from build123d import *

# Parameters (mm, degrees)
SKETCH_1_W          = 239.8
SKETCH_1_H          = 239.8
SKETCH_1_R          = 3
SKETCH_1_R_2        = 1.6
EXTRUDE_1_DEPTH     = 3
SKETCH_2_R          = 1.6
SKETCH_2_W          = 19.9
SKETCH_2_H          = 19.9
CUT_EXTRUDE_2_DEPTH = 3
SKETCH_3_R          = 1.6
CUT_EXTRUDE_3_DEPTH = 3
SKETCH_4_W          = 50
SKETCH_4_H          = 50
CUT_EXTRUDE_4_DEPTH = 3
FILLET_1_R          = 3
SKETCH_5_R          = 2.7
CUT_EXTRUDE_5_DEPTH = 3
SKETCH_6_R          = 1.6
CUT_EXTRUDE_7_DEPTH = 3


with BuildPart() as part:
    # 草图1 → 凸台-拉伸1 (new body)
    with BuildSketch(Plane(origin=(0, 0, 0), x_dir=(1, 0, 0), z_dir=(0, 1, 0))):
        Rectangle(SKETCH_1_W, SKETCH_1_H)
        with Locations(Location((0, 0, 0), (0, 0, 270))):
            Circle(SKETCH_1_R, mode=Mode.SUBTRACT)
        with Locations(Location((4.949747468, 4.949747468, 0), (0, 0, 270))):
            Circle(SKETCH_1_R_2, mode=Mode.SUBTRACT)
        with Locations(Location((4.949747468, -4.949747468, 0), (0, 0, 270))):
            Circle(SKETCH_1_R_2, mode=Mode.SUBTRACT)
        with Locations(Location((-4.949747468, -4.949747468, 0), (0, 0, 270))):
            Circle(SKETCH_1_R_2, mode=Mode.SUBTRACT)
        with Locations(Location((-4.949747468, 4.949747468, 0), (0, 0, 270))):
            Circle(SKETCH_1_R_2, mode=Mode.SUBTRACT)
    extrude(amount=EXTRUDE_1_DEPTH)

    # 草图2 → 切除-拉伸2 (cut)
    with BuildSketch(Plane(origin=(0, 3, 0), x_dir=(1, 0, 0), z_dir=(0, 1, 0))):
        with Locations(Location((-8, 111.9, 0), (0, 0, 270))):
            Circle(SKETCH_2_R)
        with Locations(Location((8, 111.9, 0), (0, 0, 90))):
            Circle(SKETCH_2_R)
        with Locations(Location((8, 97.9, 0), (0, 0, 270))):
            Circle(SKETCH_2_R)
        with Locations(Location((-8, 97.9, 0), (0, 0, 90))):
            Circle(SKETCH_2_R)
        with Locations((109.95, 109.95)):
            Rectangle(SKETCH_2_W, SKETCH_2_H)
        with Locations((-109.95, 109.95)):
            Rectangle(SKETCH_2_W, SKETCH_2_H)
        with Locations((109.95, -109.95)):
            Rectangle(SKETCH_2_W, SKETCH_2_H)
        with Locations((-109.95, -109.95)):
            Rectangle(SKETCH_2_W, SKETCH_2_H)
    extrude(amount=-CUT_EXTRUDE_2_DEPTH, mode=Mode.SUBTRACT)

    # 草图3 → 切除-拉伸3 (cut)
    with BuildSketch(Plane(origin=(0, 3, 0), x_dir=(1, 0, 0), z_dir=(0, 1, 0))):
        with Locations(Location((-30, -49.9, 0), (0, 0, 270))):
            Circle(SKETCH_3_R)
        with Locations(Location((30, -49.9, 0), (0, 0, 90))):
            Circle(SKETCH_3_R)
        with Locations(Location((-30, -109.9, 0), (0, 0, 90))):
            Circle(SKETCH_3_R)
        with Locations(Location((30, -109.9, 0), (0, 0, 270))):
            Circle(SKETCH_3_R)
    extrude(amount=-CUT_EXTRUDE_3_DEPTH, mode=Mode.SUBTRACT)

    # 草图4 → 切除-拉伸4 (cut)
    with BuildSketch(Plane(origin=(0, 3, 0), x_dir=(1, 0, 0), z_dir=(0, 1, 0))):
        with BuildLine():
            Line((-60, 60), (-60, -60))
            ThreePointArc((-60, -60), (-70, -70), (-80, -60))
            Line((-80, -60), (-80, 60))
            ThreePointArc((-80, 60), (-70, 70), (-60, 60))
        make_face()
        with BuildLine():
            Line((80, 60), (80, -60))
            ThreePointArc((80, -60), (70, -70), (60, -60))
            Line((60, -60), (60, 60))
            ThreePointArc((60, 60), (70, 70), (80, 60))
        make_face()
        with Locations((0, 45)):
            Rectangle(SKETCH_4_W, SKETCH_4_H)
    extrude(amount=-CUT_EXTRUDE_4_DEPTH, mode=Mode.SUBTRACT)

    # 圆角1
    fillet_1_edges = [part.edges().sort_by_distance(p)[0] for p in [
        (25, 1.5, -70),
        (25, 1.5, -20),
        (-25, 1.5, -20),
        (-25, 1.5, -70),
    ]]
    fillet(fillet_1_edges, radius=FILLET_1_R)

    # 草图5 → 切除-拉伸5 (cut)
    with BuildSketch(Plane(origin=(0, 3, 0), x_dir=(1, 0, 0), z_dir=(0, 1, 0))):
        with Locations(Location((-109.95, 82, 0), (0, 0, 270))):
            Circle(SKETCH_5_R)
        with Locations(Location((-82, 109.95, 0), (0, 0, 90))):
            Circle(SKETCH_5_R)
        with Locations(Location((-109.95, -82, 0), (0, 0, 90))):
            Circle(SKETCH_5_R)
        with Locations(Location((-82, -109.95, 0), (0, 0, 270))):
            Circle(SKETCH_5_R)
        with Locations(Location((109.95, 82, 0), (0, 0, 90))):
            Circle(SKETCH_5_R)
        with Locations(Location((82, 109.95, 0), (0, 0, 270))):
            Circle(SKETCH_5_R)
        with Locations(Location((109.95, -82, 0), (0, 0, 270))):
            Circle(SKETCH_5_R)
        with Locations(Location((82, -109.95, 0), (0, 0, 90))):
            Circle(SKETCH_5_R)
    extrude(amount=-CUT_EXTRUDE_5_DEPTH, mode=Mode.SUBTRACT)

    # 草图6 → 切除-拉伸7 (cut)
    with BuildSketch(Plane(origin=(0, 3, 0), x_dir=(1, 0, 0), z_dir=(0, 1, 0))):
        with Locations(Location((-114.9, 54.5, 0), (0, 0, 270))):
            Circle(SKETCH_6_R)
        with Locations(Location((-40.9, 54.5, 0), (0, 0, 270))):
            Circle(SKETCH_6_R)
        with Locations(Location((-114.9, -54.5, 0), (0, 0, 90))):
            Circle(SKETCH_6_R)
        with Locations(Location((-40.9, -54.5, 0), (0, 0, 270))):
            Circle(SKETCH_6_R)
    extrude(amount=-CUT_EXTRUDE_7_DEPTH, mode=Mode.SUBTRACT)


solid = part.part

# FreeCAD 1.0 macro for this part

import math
import FreeCAD as App
import Part
import Sketcher
Q = App.Units.Quantity


def edges_at(feature, points):
    """Names of the edges that pass closest to the given points."""
    edges = feature.Shape.Edges
    near = lambda p: min(range(len(edges)), key=lambda i: edges[i].distToShape(Part.Vertex(*p))[0])
    return sorted({f"Edge{near(p) + 1}" for p in points})


def add_polygon(sketch, points):
    """Adds a closed chain of lines whose ends are joined by coincident constraints."""
    first, n = sketch.GeometryCount, len(points)
    for a, b in zip(points, points[1:] + points[:1]):
        sketch.addGeometry(Part.LineSegment(App.Vector(*a, 0), App.Vector(*b, 0)), False)
    for i in range(n):
        sketch.addConstraint(Sketcher.Constraint("Coincident", first + i, 2, first + (i + 1) % n, 1))

doc = App.newDocument("Part")
params = doc.addObject("Spreadsheet::Sheet", "Params")
for row, (alias, value) in enumerate([
    ("sketch1_diameter", "6 mm"),
    ("sketch1_diameter2", "3.2 mm"),
    ("sketch1_width", "239.8 mm"),
    ("pad1_length", "3 mm"),
    ("sketch2_diameter", "3.2 mm"),
    ("sketch2_width", "19.9 mm"),
    ("pocket1_length", "3 mm"),
    ("sketch3_diameter", "3.2 mm"),
    ("pocket2_length", "3 mm"),
    ("sketch4_radius", "10 mm"),
    ("sketch4_width", "50 mm"),
    ("sketch4_height", "120 mm"),
    ("pocket3_length", "3 mm"),
    ("fillet_radius", "3 mm"),
    ("sketch5_diameter", "5.4 mm"),
    ("pocket4_length", "3 mm"),
    ("sketch6_diameter", "3.2 mm"),
    ("pocket5_length", "3 mm"),
], start=1):
    params.set(f"A{row}", alias)
    params.set(f"B{row}", "=" + value)
    params.setAlias(f"B{row}", alias)

body = doc.addObject("PartDesign::Body", "Body")

# Sketch on XZ plane
sketch1 = doc.addObject("Sketcher::SketchObject", "Sketch")
body.addObject(sketch1)
sketch1.AttachmentSupport = (doc.XZ_Plane, [""])
sketch1.MapMode = "FlatFace"
add_polygon(sketch1, [(-119.9, -119.9), (-119.9, 119.9), (119.9, 119.9), (119.9, -119.9)])  # lines 0-3
sketch1.addGeometry(Part.Circle(App.Vector(-4.9, 4.9, 0), App.Vector(0, 0, 1), 1.6), False)  # 4
sketch1.addGeometry(Part.Circle(App.Vector(4.9, 4.9, 0), App.Vector(0, 0, 1), 1.6), False)  # 5
sketch1.addGeometry(Part.Circle(App.Vector(-4.9, -4.9, 0), App.Vector(0, 0, 1), 1.6), False)  # 6
sketch1.addGeometry(Part.Circle(App.Vector(0, 0, 0), App.Vector(0, 0, 1), 3), False)  # 7
sketch1.addGeometry(Part.Circle(App.Vector(4.9, -4.9, 0), App.Vector(0, 0, 1), 1.6), False)  # 8
sketch1.addConstraint(Sketcher.Constraint("Vertical", 0))
sketch1.addConstraint(Sketcher.Constraint("Horizontal", 1))
sketch1.addConstraint(Sketcher.Constraint("Vertical", 2))
sketch1.addConstraint(Sketcher.Constraint("Horizontal", 3))
sketch1.addConstraint(Sketcher.Constraint("Coincident", 7, 3, -1, 1))
sketch1.addConstraint(Sketcher.Constraint("Equal", 4, 5))
sketch1.addConstraint(Sketcher.Constraint("Equal", 5, 6))
sketch1.addConstraint(Sketcher.Constraint("Equal", 6, 8))
sketch1.addConstraint(Sketcher.Constraint("Symmetric", 5, 3, 6, 3, -1, 1))
sketch1.addConstraint(Sketcher.Constraint("Symmetric", 4, 3, 8, 3, -1, 1))
sketch1.addConstraint(Sketcher.Constraint("Symmetric", 0, 2, 2, 2, -1, 1))
sketch1.addConstraint(Sketcher.Constraint("Symmetric", 4, 3, 5, 3, -2))
sketch1.addConstraint(Sketcher.Constraint("Equal", 3, 0))
sketch1.addConstraint(Sketcher.Constraint("Diameter", 7, Q("6 mm")))
sketch1.addConstraint(Sketcher.Constraint("Diameter", 4, Q("3.2 mm")))
sketch1.addConstraint(Sketcher.Constraint("DistanceX", 1, 1, 1, 2, Q("239.8 mm")))
sketch1.addConstraint(Sketcher.Constraint("DistanceX", 4, 3, -1, 1, Q("4.949747 mm")))
sketch1.addConstraint(Sketcher.Constraint("DistanceY", -1, 1, 4, 3, Q("4.949747 mm")))
sketch1.setExpression("Constraints[17]", "Params.sketch1_diameter")
sketch1.setExpression("Constraints[18]", "Params.sketch1_diameter2")
sketch1.setExpression("Constraints[19]", "Params.sketch1_width")
pad1 = doc.addObject("PartDesign::Pad", "Pad")
body.addObject(pad1)
pad1.Profile = sketch1
pad1.setExpression("Length", "Params.pad1_length")
pad1.Reversed = True

# Sketch on XZ plane
sketch2 = doc.addObject("Sketcher::SketchObject", "Sketch001")
body.addObject(sketch2)
sketch2.AttachmentSupport = (doc.XZ_Plane, [""])
sketch2.MapMode = "FlatFace"
sketch2.AttachmentOffset = App.Placement(App.Vector(0, 0, -3), App.Rotation())
sketch2.addGeometry(Part.Circle(App.Vector(-8, -111.9, 0), App.Vector(0, 0, 1), 1.6), False)  # 0
sketch2.addGeometry(Part.Circle(App.Vector(8, -111.9, 0), App.Vector(0, 0, 1), 1.6), False)  # 1
sketch2.addGeometry(Part.Circle(App.Vector(8, -97.9, 0), App.Vector(0, 0, 1), 1.6), False)  # 2
sketch2.addGeometry(Part.Circle(App.Vector(-8, -97.9, 0), App.Vector(0, 0, 1), 1.6), False)  # 3
add_polygon(sketch2, [(100, -119.9), (100, -100), (119.9, -100), (119.9, -119.9)])  # lines 4-7
add_polygon(sketch2, [(-119.9, -119.9), (-119.9, -100), (-100, -100), (-100, -119.9)])  # lines 8-11
add_polygon(sketch2, [(100, 100), (100, 119.9), (119.9, 119.9), (119.9, 100)])  # lines 12-15
add_polygon(sketch2, [(-119.9, 100), (-119.9, 119.9), (-100, 119.9), (-100, 100)])  # lines 16-19
sketch2.addConstraint(Sketcher.Constraint("Vertical", 4))
sketch2.addConstraint(Sketcher.Constraint("Horizontal", 5))
sketch2.addConstraint(Sketcher.Constraint("Vertical", 6))
sketch2.addConstraint(Sketcher.Constraint("Horizontal", 7))
sketch2.addConstraint(Sketcher.Constraint("Vertical", 8))
sketch2.addConstraint(Sketcher.Constraint("Horizontal", 9))
sketch2.addConstraint(Sketcher.Constraint("Vertical", 10))
sketch2.addConstraint(Sketcher.Constraint("Horizontal", 11))
sketch2.addConstraint(Sketcher.Constraint("Vertical", 12))
sketch2.addConstraint(Sketcher.Constraint("Horizontal", 13))
sketch2.addConstraint(Sketcher.Constraint("Vertical", 14))
sketch2.addConstraint(Sketcher.Constraint("Horizontal", 15))
sketch2.addConstraint(Sketcher.Constraint("Vertical", 16))
sketch2.addConstraint(Sketcher.Constraint("Horizontal", 17))
sketch2.addConstraint(Sketcher.Constraint("Vertical", 18))
sketch2.addConstraint(Sketcher.Constraint("Horizontal", 19))
sketch2.addConstraint(Sketcher.Constraint("Equal", 0, 1))
sketch2.addConstraint(Sketcher.Constraint("Equal", 1, 2))
sketch2.addConstraint(Sketcher.Constraint("Equal", 2, 3))
sketch2.addConstraint(Sketcher.Constraint("Symmetric", 10, 2, 12, 2, -1, 1))
sketch2.addConstraint(Sketcher.Constraint("Symmetric", 8, 2, 14, 2, -1, 1))
sketch2.addConstraint(Sketcher.Constraint("Symmetric", 6, 2, 16, 2, -1, 1))
sketch2.addConstraint(Sketcher.Constraint("Symmetric", 4, 2, 18, 2, -1, 1))
sketch2.addConstraint(Sketcher.Constraint("Symmetric", 0, 3, 1, 3, -2))
sketch2.addConstraint(Sketcher.Constraint("Symmetric", 2, 3, 3, 3, -2))
sketch2.addConstraint(Sketcher.Constraint("Symmetric", 5, 2, 8, 2, -2))
sketch2.addConstraint(Sketcher.Constraint("Symmetric", 7, 2, 10, 2, -2))
sketch2.addConstraint(Sketcher.Constraint("Vertical", 1, 3, 2, 3))
sketch2.addConstraint(Sketcher.Constraint("Equal", 19, 4))
sketch2.addConstraint(Sketcher.Constraint("Diameter", 0, Q("3.2 mm")))
sketch2.addConstraint(Sketcher.Constraint("DistanceX", 5, 1, 5, 2, Q("19.9 mm")))
sketch2.addConstraint(Sketcher.Constraint("DistanceX", 0, 3, -1, 1, Q("8 mm")))
sketch2.addConstraint(Sketcher.Constraint("DistanceX", -1, 1, 4, 2, Q("100 mm")))
sketch2.addConstraint(Sketcher.Constraint("DistanceY", 4, 2, -1, 1, Q("100 mm")))
sketch2.addConstraint(Sketcher.Constraint("DistanceY", 1, 3, 2, 3, Q("14 mm")))
sketch2.addConstraint(Sketcher.Constraint("DistanceY", 6, 2, 1, 3, Q("8 mm")))
sketch2.setExpression("Constraints[45]", "Params.sketch2_diameter")
sketch2.setExpression("Constraints[46]", "Params.sketch2_width")
pocket1 = doc.addObject("PartDesign::Pocket", "Pocket")
body.addObject(pocket1)
pocket1.Profile = sketch2
pocket1.setExpression("Length", "Params.pocket1_length")
pocket1.Reversed = True

# Sketch on XZ plane
sketch3 = doc.addObject("Sketcher::SketchObject", "Sketch002")
body.addObject(sketch3)
sketch3.AttachmentSupport = (doc.XZ_Plane, [""])
sketch3.MapMode = "FlatFace"
sketch3.AttachmentOffset = App.Placement(App.Vector(0, 0, -3), App.Rotation())
sketch3.addGeometry(Part.Circle(App.Vector(-30, 49.9, 0), App.Vector(0, 0, 1), 1.6), False)
sketch3.addGeometry(Part.Circle(App.Vector(30, 49.9, 0), App.Vector(0, 0, 1), 1.6), False)
sketch3.addGeometry(Part.Circle(App.Vector(-30, 109.9, 0), App.Vector(0, 0, 1), 1.6), False)
sketch3.addGeometry(Part.Circle(App.Vector(30, 109.9, 0), App.Vector(0, 0, 1), 1.6), False)
sketch3.addConstraint(Sketcher.Constraint("Equal", 0, 1))
sketch3.addConstraint(Sketcher.Constraint("Equal", 1, 2))
sketch3.addConstraint(Sketcher.Constraint("Equal", 2, 3))
sketch3.addConstraint(Sketcher.Constraint("Symmetric", 0, 3, 1, 3, -2))
sketch3.addConstraint(Sketcher.Constraint("Symmetric", 2, 3, 3, 3, -2))
sketch3.addConstraint(Sketcher.Constraint("Vertical", 0, 3, 2, 3))
sketch3.addConstraint(Sketcher.Constraint("Diameter", 0, Q("3.2 mm")))
sketch3.addConstraint(Sketcher.Constraint("DistanceX", 0, 3, -1, 1, Q("30 mm")))
sketch3.addConstraint(Sketcher.Constraint("DistanceY", 0, 3, 2, 3, Q("60 mm")))
sketch3.addConstraint(Sketcher.Constraint("DistanceY", -1, 1, 0, 3, Q("49.9 mm")))
sketch3.setExpression("Constraints[6]", "Params.sketch3_diameter")
pocket2 = doc.addObject("PartDesign::Pocket", "Pocket001")
body.addObject(pocket2)
pocket2.Profile = sketch3
pocket2.setExpression("Length", "Params.pocket2_length")
pocket2.Reversed = True

# Sketch on XZ plane
sketch4 = doc.addObject("Sketcher::SketchObject", "Sketch003")
body.addObject(sketch4)
sketch4.AttachmentSupport = (doc.XZ_Plane, [""])
sketch4.MapMode = "FlatFace"
sketch4.AttachmentOffset = App.Placement(App.Vector(0, 0, -3), App.Rotation())
sketch4.addGeometry(Part.LineSegment(App.Vector(-60, 60, 0), App.Vector(-60, -60, 0)), False)  # 0
sketch4.addGeometry(Part.ArcOfCircle(Part.Circle(App.Vector(-70, -60, 0), App.Vector(0, 0, 1), 10), math.radians(180), math.radians(360)), False)  # 1
sketch4.addGeometry(Part.LineSegment(App.Vector(-80, -60, 0), App.Vector(-80, 60, 0)), False)  # 2
sketch4.addGeometry(Part.ArcOfCircle(Part.Circle(App.Vector(-70, 60, 0), App.Vector(0, 0, 1), 10), math.radians(0), math.radians(180)), False)  # 3
sketch4.addGeometry(Part.LineSegment(App.Vector(80, 60, 0), App.Vector(80, -60, 0)), False)  # 4
sketch4.addGeometry(Part.ArcOfCircle(Part.Circle(App.Vector(70, -60, 0), App.Vector(0, 0, 1), 10), math.radians(180), math.radians(360)), False)  # 5
sketch4.addGeometry(Part.LineSegment(App.Vector(60, -60, 0), App.Vector(60, 60, 0)), False)  # 6
sketch4.addGeometry(Part.ArcOfCircle(Part.Circle(App.Vector(70, 60, 0), App.Vector(0, 0, 1), 10), math.radians(0), math.radians(180)), False)  # 7
add_polygon(sketch4, [(-25, -70), (-25, -20), (25, -20), (25, -70)])  # lines 8-11
sketch4.addConstraint(Sketcher.Constraint("Tangent", 0, 2, 1, 2))
sketch4.addConstraint(Sketcher.Constraint("Tangent", 1, 1, 2, 1))
sketch4.addConstraint(Sketcher.Constraint("Tangent", 2, 2, 3, 2))
sketch4.addConstraint(Sketcher.Constraint("Tangent", 3, 1, 0, 1))
sketch4.addConstraint(Sketcher.Constraint("Tangent", 4, 2, 5, 2))
sketch4.addConstraint(Sketcher.Constraint("Tangent", 5, 1, 6, 1))
sketch4.addConstraint(Sketcher.Constraint("Tangent", 6, 2, 7, 2))
sketch4.addConstraint(Sketcher.Constraint("Tangent", 7, 1, 4, 1))
sketch4.addConstraint(Sketcher.Constraint("Vertical", 0))
sketch4.addConstraint(Sketcher.Constraint("Vertical", 2))
sketch4.addConstraint(Sketcher.Constraint("Vertical", 4))
sketch4.addConstraint(Sketcher.Constraint("Vertical", 6))
sketch4.addConstraint(Sketcher.Constraint("Vertical", 8))
sketch4.addConstraint(Sketcher.Constraint("Horizontal", 9))
sketch4.addConstraint(Sketcher.Constraint("Vertical", 10))
sketch4.addConstraint(Sketcher.Constraint("Horizontal", 11))
sketch4.addConstraint(Sketcher.Constraint("Equal", 3, 5))
sketch4.addConstraint(Sketcher.Constraint("Symmetric", 3, 3, 5, 3, -1, 1))
sketch4.addConstraint(Sketcher.Constraint("Horizontal", 1, 3, 5, 3))
sketch4.addConstraint(Sketcher.Constraint("Horizontal", 3, 3, 7, 3))
sketch4.addConstraint(Sketcher.Constraint("Equal", 11, 8))
sketch4.addConstraint(Sketcher.Constraint("Radius", 1, Q("10 mm")))
sketch4.addConstraint(Sketcher.Constraint("DistanceX", 9, 1, 9, 2, Q("50 mm")))
sketch4.addConstraint(Sketcher.Constraint("DistanceY", 0, 2, 0, 1, Q("120 mm")))
sketch4.addConstraint(Sketcher.Constraint("DistanceX", 1, 3, -1, 1, Q("70 mm")))
sketch4.addConstraint(Sketcher.Constraint("DistanceX", 8, 2, -1, 1, Q("25 mm")))
sketch4.addConstraint(Sketcher.Constraint("DistanceY", 8, 2, -1, 1, Q("20 mm")))
sketch4.setExpression("Constraints[25]", "Params.sketch4_radius")
sketch4.setExpression("Constraints[26]", "Params.sketch4_width")
sketch4.setExpression("Constraints[27]", "Params.sketch4_height")
pocket3 = doc.addObject("PartDesign::Pocket", "Pocket002")
body.addObject(pocket3)
pocket3.Profile = sketch4
pocket3.setExpression("Length", "Params.pocket3_length")
pocket3.Reversed = True
doc.recompute()

fillet = doc.addObject("PartDesign::Fillet", "Fillet")
body.addObject(fillet)
fillet.Base = (pocket3, edges_at(pocket3, [
    (25, 1.5, -70),
    (25, 1.5, -20),
    (-25, 1.5, -20),
    (-25, 1.5, -70),
]))
fillet.setExpression("Radius", "Params.fillet_radius")

# Sketch on XZ plane
sketch5 = doc.addObject("Sketcher::SketchObject", "Sketch004")
body.addObject(sketch5)
sketch5.AttachmentSupport = (doc.XZ_Plane, [""])
sketch5.MapMode = "FlatFace"
sketch5.AttachmentOffset = App.Placement(App.Vector(0, 0, -3), App.Rotation())
sketch5.addGeometry(Part.Circle(App.Vector(-110, -82, 0), App.Vector(0, 0, 1), 2.7), False)
sketch5.addGeometry(Part.Circle(App.Vector(-82, -110, 0), App.Vector(0, 0, 1), 2.7), False)
sketch5.addGeometry(Part.Circle(App.Vector(-110, 82, 0), App.Vector(0, 0, 1), 2.7), False)
sketch5.addGeometry(Part.Circle(App.Vector(-82, 110, 0), App.Vector(0, 0, 1), 2.7), False)
sketch5.addGeometry(Part.Circle(App.Vector(110, -82, 0), App.Vector(0, 0, 1), 2.7), False)
sketch5.addGeometry(Part.Circle(App.Vector(82, -110, 0), App.Vector(0, 0, 1), 2.7), False)
sketch5.addGeometry(Part.Circle(App.Vector(110, 82, 0), App.Vector(0, 0, 1), 2.7), False)
sketch5.addGeometry(Part.Circle(App.Vector(82, 110, 0), App.Vector(0, 0, 1), 2.7), False)
sketch5.addConstraint(Sketcher.Constraint("Equal", 0, 1))
sketch5.addConstraint(Sketcher.Constraint("Equal", 1, 2))
sketch5.addConstraint(Sketcher.Constraint("Equal", 2, 3))
sketch5.addConstraint(Sketcher.Constraint("Equal", 3, 4))
sketch5.addConstraint(Sketcher.Constraint("Equal", 4, 5))
sketch5.addConstraint(Sketcher.Constraint("Equal", 5, 6))
sketch5.addConstraint(Sketcher.Constraint("Equal", 6, 7))
sketch5.addConstraint(Sketcher.Constraint("Symmetric", 2, 3, 4, 3, -1, 1))
sketch5.addConstraint(Sketcher.Constraint("Symmetric", 3, 3, 5, 3, -1, 1))
sketch5.addConstraint(Sketcher.Constraint("Symmetric", 0, 3, 6, 3, -1, 1))
sketch5.addConstraint(Sketcher.Constraint("Symmetric", 1, 3, 7, 3, -1, 1))
sketch5.addConstraint(Sketcher.Constraint("Symmetric", 0, 3, 4, 3, -2))
sketch5.addConstraint(Sketcher.Constraint("Symmetric", 1, 3, 5, 3, -2))
sketch5.addConstraint(Sketcher.Constraint("Diameter", 0, Q("5.4 mm")))
sketch5.addConstraint(Sketcher.Constraint("DistanceY", 0, 3, -1, 1, Q("82 mm")))
sketch5.addConstraint(Sketcher.Constraint("DistanceX", 1, 3, -1, 1, Q("82 mm")))
sketch5.addConstraint(Sketcher.Constraint("DistanceY", 1, 3, 3, 3, Q("219.9 mm")))
sketch5.addConstraint(Sketcher.Constraint("DistanceX", 0, 3, 4, 3, Q("219.9 mm")))
sketch5.setExpression("Constraints[13]", "Params.sketch5_diameter")
pocket4 = doc.addObject("PartDesign::Pocket", "Pocket003")
body.addObject(pocket4)
pocket4.Profile = sketch5
pocket4.setExpression("Length", "Params.pocket4_length")
pocket4.Reversed = True

# Sketch on XZ plane
sketch6 = doc.addObject("Sketcher::SketchObject", "Sketch005")
body.addObject(sketch6)
sketch6.AttachmentSupport = (doc.XZ_Plane, [""])
sketch6.MapMode = "FlatFace"
sketch6.AttachmentOffset = App.Placement(App.Vector(0, 0, -3), App.Rotation())
sketch6.addGeometry(Part.Circle(App.Vector(-114.9, -54.5, 0), App.Vector(0, 0, 1), 1.6), False)
sketch6.addGeometry(Part.Circle(App.Vector(-40.9, -54.5, 0), App.Vector(0, 0, 1), 1.6), False)
sketch6.addGeometry(Part.Circle(App.Vector(-114.9, 54.5, 0), App.Vector(0, 0, 1), 1.6), False)
sketch6.addGeometry(Part.Circle(App.Vector(-40.9, 54.5, 0), App.Vector(0, 0, 1), 1.6), False)
sketch6.addConstraint(Sketcher.Constraint("Equal", 0, 1))
sketch6.addConstraint(Sketcher.Constraint("Equal", 1, 2))
sketch6.addConstraint(Sketcher.Constraint("Equal", 2, 3))
sketch6.addConstraint(Sketcher.Constraint("Symmetric", 0, 3, 2, 3, -1))
sketch6.addConstraint(Sketcher.Constraint("Symmetric", 1, 3, 3, 3, -1))
sketch6.addConstraint(Sketcher.Constraint("Horizontal", 0, 3, 1, 3))
sketch6.addConstraint(Sketcher.Constraint("Diameter", 0, Q("3.2 mm")))
sketch6.addConstraint(Sketcher.Constraint("DistanceX", 0, 3, 1, 3, Q("74 mm")))
sketch6.addConstraint(Sketcher.Constraint("DistanceY", 0, 3, 2, 3, Q("109 mm")))
sketch6.addConstraint(Sketcher.Constraint("DistanceX", 0, 3, -1, 1, Q("114.9 mm")))
sketch6.setExpression("Constraints[6]", "Params.sketch6_diameter")
pocket5 = doc.addObject("PartDesign::Pocket", "Pocket004")
body.addObject(pocket5)
pocket5.Profile = sketch6
pocket5.setExpression("Length", "Params.pocket5_length")
pocket5.Reversed = True

doc.recompute()
